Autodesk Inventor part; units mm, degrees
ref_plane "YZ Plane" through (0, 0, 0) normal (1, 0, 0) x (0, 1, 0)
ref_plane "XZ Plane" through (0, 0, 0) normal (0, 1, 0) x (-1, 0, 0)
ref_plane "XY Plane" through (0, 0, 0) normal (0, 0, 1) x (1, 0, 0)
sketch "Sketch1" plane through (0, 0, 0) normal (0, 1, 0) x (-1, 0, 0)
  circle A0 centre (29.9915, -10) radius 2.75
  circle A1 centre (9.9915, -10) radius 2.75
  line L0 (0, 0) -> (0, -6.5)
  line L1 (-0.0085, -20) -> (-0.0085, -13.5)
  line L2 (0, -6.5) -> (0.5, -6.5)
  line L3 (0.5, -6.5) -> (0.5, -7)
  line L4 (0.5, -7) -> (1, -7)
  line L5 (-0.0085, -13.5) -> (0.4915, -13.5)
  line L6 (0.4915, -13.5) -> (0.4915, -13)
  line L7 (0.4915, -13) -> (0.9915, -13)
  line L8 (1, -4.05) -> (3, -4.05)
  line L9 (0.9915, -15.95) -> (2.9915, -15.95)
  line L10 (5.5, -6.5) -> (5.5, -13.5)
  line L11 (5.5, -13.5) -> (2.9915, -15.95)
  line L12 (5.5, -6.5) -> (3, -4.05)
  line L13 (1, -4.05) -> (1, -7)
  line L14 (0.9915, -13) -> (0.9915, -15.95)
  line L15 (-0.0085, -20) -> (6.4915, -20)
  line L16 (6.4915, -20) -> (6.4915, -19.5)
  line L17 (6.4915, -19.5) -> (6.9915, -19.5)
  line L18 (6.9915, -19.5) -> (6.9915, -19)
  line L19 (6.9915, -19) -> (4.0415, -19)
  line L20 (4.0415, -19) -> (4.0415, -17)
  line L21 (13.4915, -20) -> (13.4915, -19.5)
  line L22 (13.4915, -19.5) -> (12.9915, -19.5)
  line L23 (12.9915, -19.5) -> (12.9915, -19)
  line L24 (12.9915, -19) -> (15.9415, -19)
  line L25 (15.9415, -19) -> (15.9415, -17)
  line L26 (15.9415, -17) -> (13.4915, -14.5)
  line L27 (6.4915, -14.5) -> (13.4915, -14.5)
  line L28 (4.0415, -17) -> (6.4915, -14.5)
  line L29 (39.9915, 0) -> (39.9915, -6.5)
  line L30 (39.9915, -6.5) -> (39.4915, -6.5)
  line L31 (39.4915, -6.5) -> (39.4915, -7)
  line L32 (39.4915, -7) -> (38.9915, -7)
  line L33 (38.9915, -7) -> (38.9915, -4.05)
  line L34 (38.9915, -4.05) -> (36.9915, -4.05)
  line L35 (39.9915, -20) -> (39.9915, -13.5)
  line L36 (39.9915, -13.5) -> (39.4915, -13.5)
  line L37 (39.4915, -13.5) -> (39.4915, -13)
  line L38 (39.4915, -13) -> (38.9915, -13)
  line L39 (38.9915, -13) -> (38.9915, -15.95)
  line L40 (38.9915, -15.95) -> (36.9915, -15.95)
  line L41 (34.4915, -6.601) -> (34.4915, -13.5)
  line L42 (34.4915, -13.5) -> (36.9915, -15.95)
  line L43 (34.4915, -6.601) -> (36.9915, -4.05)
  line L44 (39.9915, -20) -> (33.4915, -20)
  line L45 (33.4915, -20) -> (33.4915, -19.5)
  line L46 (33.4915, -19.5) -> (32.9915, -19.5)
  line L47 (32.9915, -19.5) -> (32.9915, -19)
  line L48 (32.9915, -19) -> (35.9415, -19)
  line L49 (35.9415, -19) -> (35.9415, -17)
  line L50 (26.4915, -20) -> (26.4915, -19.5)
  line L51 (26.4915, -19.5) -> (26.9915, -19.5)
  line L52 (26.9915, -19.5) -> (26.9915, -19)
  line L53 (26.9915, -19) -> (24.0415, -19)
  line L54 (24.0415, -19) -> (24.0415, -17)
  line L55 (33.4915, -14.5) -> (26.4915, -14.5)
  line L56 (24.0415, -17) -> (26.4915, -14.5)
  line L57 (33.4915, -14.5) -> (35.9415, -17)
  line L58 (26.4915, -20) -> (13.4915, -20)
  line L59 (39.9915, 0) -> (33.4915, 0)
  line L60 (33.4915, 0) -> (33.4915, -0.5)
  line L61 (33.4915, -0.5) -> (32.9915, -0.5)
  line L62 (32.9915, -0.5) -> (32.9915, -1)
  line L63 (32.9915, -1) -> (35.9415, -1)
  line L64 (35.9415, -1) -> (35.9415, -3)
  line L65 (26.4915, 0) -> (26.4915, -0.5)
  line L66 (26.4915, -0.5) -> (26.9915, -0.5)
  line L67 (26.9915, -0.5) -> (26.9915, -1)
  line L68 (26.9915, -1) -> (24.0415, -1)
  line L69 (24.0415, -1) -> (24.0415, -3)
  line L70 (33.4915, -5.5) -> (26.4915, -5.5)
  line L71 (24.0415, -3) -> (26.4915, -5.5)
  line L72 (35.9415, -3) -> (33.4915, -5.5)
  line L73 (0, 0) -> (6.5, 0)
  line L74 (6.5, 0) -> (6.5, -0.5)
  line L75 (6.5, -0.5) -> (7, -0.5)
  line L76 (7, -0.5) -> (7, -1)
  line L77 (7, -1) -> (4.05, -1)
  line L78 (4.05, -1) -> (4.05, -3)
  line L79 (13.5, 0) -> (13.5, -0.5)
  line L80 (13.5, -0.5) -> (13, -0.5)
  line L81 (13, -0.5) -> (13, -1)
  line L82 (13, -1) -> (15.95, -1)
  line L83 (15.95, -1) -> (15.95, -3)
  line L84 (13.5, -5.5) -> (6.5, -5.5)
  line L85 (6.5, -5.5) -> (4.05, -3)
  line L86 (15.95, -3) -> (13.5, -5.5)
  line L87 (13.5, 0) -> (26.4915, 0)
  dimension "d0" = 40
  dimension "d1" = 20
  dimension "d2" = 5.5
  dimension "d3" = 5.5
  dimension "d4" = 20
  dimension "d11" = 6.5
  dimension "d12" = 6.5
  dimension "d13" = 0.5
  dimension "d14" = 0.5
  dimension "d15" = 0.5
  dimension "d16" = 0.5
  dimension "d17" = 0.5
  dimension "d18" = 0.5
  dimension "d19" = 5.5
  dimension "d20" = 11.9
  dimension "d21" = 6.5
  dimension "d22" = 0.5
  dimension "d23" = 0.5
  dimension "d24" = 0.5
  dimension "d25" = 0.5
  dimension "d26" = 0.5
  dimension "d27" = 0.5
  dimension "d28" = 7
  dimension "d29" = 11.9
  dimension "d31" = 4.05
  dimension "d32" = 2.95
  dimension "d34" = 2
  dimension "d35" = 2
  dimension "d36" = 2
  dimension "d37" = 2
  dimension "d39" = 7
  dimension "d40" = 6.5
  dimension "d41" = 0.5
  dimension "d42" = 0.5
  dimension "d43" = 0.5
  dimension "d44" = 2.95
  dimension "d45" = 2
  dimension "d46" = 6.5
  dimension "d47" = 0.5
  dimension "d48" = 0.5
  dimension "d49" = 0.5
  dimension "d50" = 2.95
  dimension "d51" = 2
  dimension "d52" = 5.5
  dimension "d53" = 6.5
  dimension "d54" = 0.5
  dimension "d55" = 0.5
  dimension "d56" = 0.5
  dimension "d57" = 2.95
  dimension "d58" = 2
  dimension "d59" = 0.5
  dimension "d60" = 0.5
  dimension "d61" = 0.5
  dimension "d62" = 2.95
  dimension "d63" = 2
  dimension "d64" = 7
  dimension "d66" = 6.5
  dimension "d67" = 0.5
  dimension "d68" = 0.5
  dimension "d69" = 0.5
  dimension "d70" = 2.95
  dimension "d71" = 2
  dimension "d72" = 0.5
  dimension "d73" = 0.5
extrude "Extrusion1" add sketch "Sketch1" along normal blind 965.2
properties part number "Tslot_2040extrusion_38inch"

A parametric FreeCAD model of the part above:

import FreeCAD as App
import Part
import Sketcher
from FreeCAD import Vector
Q = App.Units.Quantity

doc = App.newDocument("Part")
body = doc.addObject("PartDesign::Body", "Body")

# Sketch on XZ plane
sketch1 = body.newObject("Sketcher::SketchObject", "Sketch")
sketch1.AttachmentSupport = (doc.getObject("XZ_Plane"), [""])
sketch1.MapMode = "FlatFace"
sketch1.addGeometry(Part.LineSegment(Vector(-6.5, 0, 0), Vector(0, 0, 0)), False)
sketch1.addGeometry(Part.LineSegment(Vector(0, 0, 0), Vector(0, -6.5, 0)), False)
sketch1.addGeometry(Part.LineSegment(Vector(0, -6.5, 0), Vector(-0.5, -6.5, 0)), False)
sketch1.addGeometry(Part.LineSegment(Vector(-0.5, -6.5, 0), Vector(-0.5, -7, 0)), False)
sketch1.addGeometry(Part.LineSegment(Vector(-0.5, -7, 0), Vector(-1, -7, 0)), False)
sketch1.addGeometry(Part.LineSegment(Vector(-1, -7, 0), Vector(-1, -4.05, 0)), False)
sketch1.addGeometry(Part.LineSegment(Vector(-1, -4.05, 0), Vector(-3, -4.05, 0)), False)
sketch1.addGeometry(Part.LineSegment(Vector(-3, -4.05, 0), Vector(-5.5, -6.5, 0)), False)
sketch1.addGeometry(Part.LineSegment(Vector(-5.5, -6.5, 0), Vector(-5.5, -13.5, 0)), False)
sketch1.addGeometry(Part.LineSegment(Vector(-5.5, -13.5, 0), Vector(-2.9915, -15.95, 0)), False)
sketch1.addGeometry(Part.LineSegment(Vector(-2.9915, -15.95, 0), Vector(-0.9915, -15.95, 0)), False)
sketch1.addGeometry(Part.LineSegment(Vector(-0.9915, -15.95, 0), Vector(-0.9915, -13, 0)), False)
sketch1.addGeometry(Part.LineSegment(Vector(-0.9915, -13, 0), Vector(-0.4915, -13, 0)), False)
sketch1.addGeometry(Part.LineSegment(Vector(-0.4915, -13, 0), Vector(-0.4915, -13.5, 0)), False)
sketch1.addGeometry(Part.LineSegment(Vector(-0.4915, -13.5, 0), Vector(0.0085, -13.5, 0)), False)
sketch1.addGeometry(Part.LineSegment(Vector(0.0085, -13.5, 0), Vector(0.0085, -20, 0)), False)
sketch1.addGeometry(Part.LineSegment(Vector(0.0085, -20, 0), Vector(-6.4915, -20, 0)), False)
sketch1.addGeometry(Part.LineSegment(Vector(-6.4915, -20, 0), Vector(-6.4915, -19.5, 0)), False)
sketch1.addGeometry(Part.LineSegment(Vector(-6.4915, -19.5, 0), Vector(-6.9915, -19.5, 0)), False)
sketch1.addGeometry(Part.LineSegment(Vector(-6.9915, -19.5, 0), Vector(-6.9915, -19, 0)), False)
sketch1.addGeometry(Part.LineSegment(Vector(-6.9915, -19, 0), Vector(-4.0415, -19, 0)), False)
sketch1.addGeometry(Part.LineSegment(Vector(-4.0415, -19, 0), Vector(-4.0415, -17, 0)), False)
sketch1.addGeometry(Part.LineSegment(Vector(-4.0415, -17, 0), Vector(-6.4915, -14.5, 0)), False)
sketch1.addGeometry(Part.LineSegment(Vector(-6.4915, -14.5, 0), Vector(-13.4915, -14.5, 0)), False)
sketch1.addGeometry(Part.LineSegment(Vector(-13.4915, -14.5, 0), Vector(-15.9415, -17, 0)), False)
sketch1.addGeometry(Part.LineSegment(Vector(-15.9415, -17, 0), Vector(-15.9415, -19, 0)), False)
sketch1.addGeometry(Part.LineSegment(Vector(-15.9415, -19, 0), Vector(-12.9915, -19, 0)), False)
sketch1.addGeometry(Part.LineSegment(Vector(-12.9915, -19, 0), Vector(-12.9915, -19.5, 0)), False)
sketch1.addGeometry(Part.LineSegment(Vector(-12.9915, -19.5, 0), Vector(-13.4915, -19.5, 0)), False)
sketch1.addGeometry(Part.LineSegment(Vector(-13.4915, -19.5, 0), Vector(-13.4915, -20, 0)), False)
sketch1.addGeometry(Part.LineSegment(Vector(-13.4915, -20, 0), Vector(-26.4915, -20, 0)), False)
sketch1.addGeometry(Part.LineSegment(Vector(-26.4915, -20, 0), Vector(-26.4915, -19.5, 0)), False)
sketch1.addGeometry(Part.LineSegment(Vector(-26.4915, -19.5, 0), Vector(-26.9915, -19.5, 0)), False)
sketch1.addGeometry(Part.LineSegment(Vector(-26.9915, -19.5, 0), Vector(-26.9915, -19, 0)), False)
sketch1.addGeometry(Part.LineSegment(Vector(-26.9915, -19, 0), Vector(-24.0415, -19, 0)), False)
sketch1.addGeometry(Part.LineSegment(Vector(-24.0415, -19, 0), Vector(-24.0415, -17, 0)), False)
sketch1.addGeometry(Part.LineSegment(Vector(-24.0415, -17, 0), Vector(-26.4915, -14.5, 0)), False)
sketch1.addGeometry(Part.LineSegment(Vector(-26.4915, -14.5, 0), Vector(-33.4915, -14.5, 0)), False)
sketch1.addGeometry(Part.LineSegment(Vector(-33.4915, -14.5, 0), Vector(-35.9415, -17, 0)), False)
sketch1.addGeometry(Part.LineSegment(Vector(-35.9415, -17, 0), Vector(-35.9415, -19, 0)), False)
sketch1.addGeometry(Part.LineSegment(Vector(-35.9415, -19, 0), Vector(-32.9915, -19, 0)), False)
sketch1.addGeometry(Part.LineSegment(Vector(-32.9915, -19, 0), Vector(-32.9915, -19.5, 0)), False)
sketch1.addGeometry(Part.LineSegment(Vector(-32.9915, -19.5, 0), Vector(-33.4915, -19.5, 0)), False)
sketch1.addGeometry(Part.LineSegment(Vector(-33.4915, -19.5, 0), Vector(-33.4915, -20, 0)), False)
sketch1.addGeometry(Part.LineSegment(Vector(-33.4915, -20, 0), Vector(-39.9915, -20, 0)), False)
sketch1.addGeometry(Part.LineSegment(Vector(-39.9915, -20, 0), Vector(-39.9915, -13.5, 0)), False)
sketch1.addGeometry(Part.LineSegment(Vector(-39.9915, -13.5, 0), Vector(-39.4915, -13.5, 0)), False)
sketch1.addGeometry(Part.LineSegment(Vector(-39.4915, -13.5, 0), Vector(-39.4915, -13, 0)), False)
sketch1.addGeometry(Part.LineSegment(Vector(-39.4915, -13, 0), Vector(-38.9915, -13, 0)), False)
sketch1.addGeometry(Part.LineSegment(Vector(-38.9915, -13, 0), Vector(-38.9915, -15.95, 0)), False)
sketch1.addGeometry(Part.LineSegment(Vector(-38.9915, -15.95, 0), Vector(-36.9915, -15.95, 0)), False)
sketch1.addGeometry(Part.LineSegment(Vector(-36.9915, -15.95, 0), Vector(-34.4915, -13.5, 0)), False)
sketch1.addGeometry(Part.LineSegment(Vector(-34.4915, -13.5, 0), Vector(-34.4915, -6.601, 0)), False)
sketch1.addGeometry(Part.LineSegment(Vector(-34.4915, -6.601, 0), Vector(-36.9915, -4.05, 0)), False)
sketch1.addGeometry(Part.LineSegment(Vector(-36.9915, -4.05, 0), Vector(-38.9915, -4.05, 0)), False)
sketch1.addGeometry(Part.LineSegment(Vector(-38.9915, -4.05, 0), Vector(-38.9915, -7, 0)), False)
sketch1.addGeometry(Part.LineSegment(Vector(-38.9915, -7, 0), Vector(-39.4915, -7, 0)), False)
sketch1.addGeometry(Part.LineSegment(Vector(-39.4915, -7, 0), Vector(-39.4915, -6.5, 0)), False)
sketch1.addGeometry(Part.LineSegment(Vector(-39.4915, -6.5, 0), Vector(-39.9915, -6.5, 0)), False)
sketch1.addGeometry(Part.LineSegment(Vector(-39.9915, -6.5, 0), Vector(-39.9915, 0, 0)), False)
sketch1.addGeometry(Part.LineSegment(Vector(-39.9915, 0, 0), Vector(-33.4915, 0, 0)), False)
sketch1.addGeometry(Part.LineSegment(Vector(-33.4915, 0, 0), Vector(-33.4915, -0.5, 0)), False)
sketch1.addGeometry(Part.LineSegment(Vector(-33.4915, -0.5, 0), Vector(-32.9915, -0.5, 0)), False)
sketch1.addGeometry(Part.LineSegment(Vector(-32.9915, -0.5, 0), Vector(-32.9915, -1, 0)), False)
sketch1.addGeometry(Part.LineSegment(Vector(-32.9915, -1, 0), Vector(-35.9415, -1, 0)), False)
sketch1.addGeometry(Part.LineSegment(Vector(-35.9415, -1, 0), Vector(-35.9415, -3, 0)), False)
sketch1.addGeometry(Part.LineSegment(Vector(-35.9415, -3, 0), Vector(-33.4915, -5.5, 0)), False)
sketch1.addGeometry(Part.LineSegment(Vector(-33.4915, -5.5, 0), Vector(-26.4915, -5.5, 0)), False)
sketch1.addGeometry(Part.LineSegment(Vector(-26.4915, -5.5, 0), Vector(-24.0415, -3, 0)), False)
sketch1.addGeometry(Part.LineSegment(Vector(-24.0415, -3, 0), Vector(-24.0415, -1, 0)), False)
sketch1.addGeometry(Part.LineSegment(Vector(-24.0415, -1, 0), Vector(-26.9915, -1, 0)), False)
sketch1.addGeometry(Part.LineSegment(Vector(-26.9915, -1, 0), Vector(-26.9915, -0.5, 0)), False)
sketch1.addGeometry(Part.LineSegment(Vector(-26.9915, -0.5, 0), Vector(-26.4915, -0.5, 0)), False)
sketch1.addGeometry(Part.LineSegment(Vector(-26.4915, -0.5, 0), Vector(-26.4915, 0, 0)), False)
sketch1.addGeometry(Part.LineSegment(Vector(-26.4915, 0, 0), Vector(-13.5, 0, 0)), False)
sketch1.addGeometry(Part.LineSegment(Vector(-13.5, 0, 0), Vector(-13.5, -0.5, 0)), False)
sketch1.addGeometry(Part.LineSegment(Vector(-13.5, -0.5, 0), Vector(-13, -0.5, 0)), False)
sketch1.addGeometry(Part.LineSegment(Vector(-13, -0.5, 0), Vector(-13, -1, 0)), False)
sketch1.addGeometry(Part.LineSegment(Vector(-13, -1, 0), Vector(-15.95, -1, 0)), False)
sketch1.addGeometry(Part.LineSegment(Vector(-15.95, -1, 0), Vector(-15.95, -3, 0)), False)
sketch1.addGeometry(Part.LineSegment(Vector(-15.95, -3, 0), Vector(-13.5, -5.5, 0)), False)
sketch1.addGeometry(Part.LineSegment(Vector(-13.5, -5.5, 0), Vector(-6.5, -5.5, 0)), False)
sketch1.addGeometry(Part.LineSegment(Vector(-6.5, -5.5, 0), Vector(-4.05, -3, 0)), False)
sketch1.addGeometry(Part.LineSegment(Vector(-4.05, -3, 0), Vector(-4.05, -1, 0)), False)
sketch1.addGeometry(Part.LineSegment(Vector(-4.05, -1, 0), Vector(-7, -1, 0)), False)
sketch1.addGeometry(Part.LineSegment(Vector(-7, -1, 0), Vector(-7, -0.5, 0)), False)
sketch1.addGeometry(Part.LineSegment(Vector(-7, -0.5, 0), Vector(-6.5, -0.5, 0)), False)
sketch1.addGeometry(Part.LineSegment(Vector(-6.5, -0.5, 0), Vector(-6.5, 0, 0)), False)
sketch1.addGeometry(Part.Circle(Vector(-9.9915, -10, 0), Vector(0, 0, 1), 2.75), False)
sketch1.addGeometry(Part.Circle(Vector(-29.9915, -10, 0), Vector(0, 0, 1), 2.75), False)
sketch1.addConstraint(Sketcher.Constraint("Coincident", 0, 2, 1, 1))
sketch1.addConstraint(Sketcher.Constraint("Coincident", 1, 2, 2, 1))
sketch1.addConstraint(Sketcher.Constraint("Coincident", 2, 2, 3, 1))
sketch1.addConstraint(Sketcher.Constraint("Coincident", 3, 2, 4, 1))
sketch1.addConstraint(Sketcher.Constraint("Coincident", 4, 2, 5, 1))
sketch1.addConstraint(Sketcher.Constraint("Coincident", 5, 2, 6, 1))
sketch1.addConstraint(Sketcher.Constraint("Coincident", 6, 2, 7, 1))
sketch1.addConstraint(Sketcher.Constraint("Coincident", 7, 2, 8, 1))
sketch1.addConstraint(Sketcher.Constraint("Coincident", 8, 2, 9, 1))
sketch1.addConstraint(Sketcher.Constraint("Coincident", 9, 2, 10, 1))
sketch1.addConstraint(Sketcher.Constraint("Coincident", 10, 2, 11, 1))
sketch1.addConstraint(Sketcher.Constraint("Coincident", 11, 2, 12, 1))
sketch1.addConstraint(Sketcher.Constraint("Coincident", 12, 2, 13, 1))
sketch1.addConstraint(Sketcher.Constraint("Coincident", 13, 2, 14, 1))
sketch1.addConstraint(Sketcher.Constraint("Coincident", 14, 2, 15, 1))
sketch1.addConstraint(Sketcher.Constraint("Coincident", 15, 2, 16, 1))
sketch1.addConstraint(Sketcher.Constraint("Coincident", 16, 2, 17, 1))
sketch1.addConstraint(Sketcher.Constraint("Coincident", 17, 2, 18, 1))
sketch1.addConstraint(Sketcher.Constraint("Coincident", 18, 2, 19, 1))
sketch1.addConstraint(Sketcher.Constraint("Coincident", 19, 2, 20, 1))
sketch1.addConstraint(Sketcher.Constraint("Coincident", 20, 2, 21, 1))
sketch1.addConstraint(Sketcher.Constraint("Coincident", 21, 2, 22, 1))
sketch1.addConstraint(Sketcher.Constraint("Coincident", 22, 2, 23, 1))
sketch1.addConstraint(Sketcher.Constraint("Coincident", 23, 2, 24, 1))
sketch1.addConstraint(Sketcher.Constraint("Coincident", 24, 2, 25, 1))
sketch1.addConstraint(Sketcher.Constraint("Coincident", 25, 2, 26, 1))
sketch1.addConstraint(Sketcher.Constraint("Coincident", 26, 2, 27, 1))
sketch1.addConstraint(Sketcher.Constraint("Coincident", 27, 2, 28, 1))
sketch1.addConstraint(Sketcher.Constraint("Coincident", 28, 2, 29, 1))
sketch1.addConstraint(Sketcher.Constraint("Coincident", 29, 2, 30, 1))
sketch1.addConstraint(Sketcher.Constraint("Coincident", 30, 2, 31, 1))
sketch1.addConstraint(Sketcher.Constraint("Coincident", 31, 2, 32, 1))
sketch1.addConstraint(Sketcher.Constraint("Coincident", 32, 2, 33, 1))
sketch1.addConstraint(Sketcher.Constraint("Coincident", 33, 2, 34, 1))
sketch1.addConstraint(Sketcher.Constraint("Coincident", 34, 2, 35, 1))
sketch1.addConstraint(Sketcher.Constraint("Coincident", 35, 2, 36, 1))
sketch1.addConstraint(Sketcher.Constraint("Coincident", 36, 2, 37, 1))
sketch1.addConstraint(Sketcher.Constraint("Coincident", 37, 2, 38, 1))
sketch1.addConstraint(Sketcher.Constraint("Coincident", 38, 2, 39, 1))
sketch1.addConstraint(Sketcher.Constraint("Coincident", 39, 2, 40, 1))
sketch1.addConstraint(Sketcher.Constraint("Coincident", 40, 2, 41, 1))
sketch1.addConstraint(Sketcher.Constraint("Coincident", 41, 2, 42, 1))
sketch1.addConstraint(Sketcher.Constraint("Coincident", 42, 2, 43, 1))
sketch1.addConstraint(Sketcher.Constraint("Coincident", 43, 2, 44, 1))
sketch1.addConstraint(Sketcher.Constraint("Coincident", 44, 2, 45, 1))
sketch1.addConstraint(Sketcher.Constraint("Coincident", 45, 2, 46, 1))
sketch1.addConstraint(Sketcher.Constraint("Coincident", 46, 2, 47, 1))
sketch1.addConstraint(Sketcher.Constraint("Coincident", 47, 2, 48, 1))
sketch1.addConstraint(Sketcher.Constraint("Coincident", 48, 2, 49, 1))
sketch1.addConstraint(Sketcher.Constraint("Coincident", 49, 2, 50, 1))
sketch1.addConstraint(Sketcher.Constraint("Coincident", 50, 2, 51, 1))
sketch1.addConstraint(Sketcher.Constraint("Coincident", 51, 2, 52, 1))
sketch1.addConstraint(Sketcher.Constraint("Coincident", 52, 2, 53, 1))
sketch1.addConstraint(Sketcher.Constraint("Coincident", 53, 2, 54, 1))
sketch1.addConstraint(Sketcher.Constraint("Coincident", 54, 2, 55, 1))
sketch1.addConstraint(Sketcher.Constraint("Coincident", 55, 2, 56, 1))
sketch1.addConstraint(Sketcher.Constraint("Coincident", 56, 2, 57, 1))
sketch1.addConstraint(Sketcher.Constraint("Coincident", 57, 2, 58, 1))
sketch1.addConstraint(Sketcher.Constraint("Coincident", 58, 2, 59, 1))
sketch1.addConstraint(Sketcher.Constraint("Coincident", 59, 2, 60, 1))
sketch1.addConstraint(Sketcher.Constraint("Coincident", 60, 2, 61, 1))
sketch1.addConstraint(Sketcher.Constraint("Coincident", 61, 2, 62, 1))
sketch1.addConstraint(Sketcher.Constraint("Coincident", 62, 2, 63, 1))
sketch1.addConstraint(Sketcher.Constraint("Coincident", 63, 2, 64, 1))
sketch1.addConstraint(Sketcher.Constraint("Coincident", 64, 2, 65, 1))
sketch1.addConstraint(Sketcher.Constraint("Coincident", 65, 2, 66, 1))
sketch1.addConstraint(Sketcher.Constraint("Coincident", 66, 2, 67, 1))
sketch1.addConstraint(Sketcher.Constraint("Coincident", 67, 2, 68, 1))
sketch1.addConstraint(Sketcher.Constraint("Coincident", 68, 2, 69, 1))
sketch1.addConstraint(Sketcher.Constraint("Coincident", 69, 2, 70, 1))
sketch1.addConstraint(Sketcher.Constraint("Coincident", 70, 2, 71, 1))
sketch1.addConstraint(Sketcher.Constraint("Coincident", 71, 2, 72, 1))
sketch1.addConstraint(Sketcher.Constraint("Coincident", 72, 2, 73, 1))
sketch1.addConstraint(Sketcher.Constraint("Coincident", 73, 2, 74, 1))
sketch1.addConstraint(Sketcher.Constraint("Coincident", 74, 2, 75, 1))
sketch1.addConstraint(Sketcher.Constraint("Coincident", 75, 2, 76, 1))
sketch1.addConstraint(Sketcher.Constraint("Coincident", 76, 2, 77, 1))
sketch1.addConstraint(Sketcher.Constraint("Coincident", 77, 2, 78, 1))
sketch1.addConstraint(Sketcher.Constraint("Coincident", 78, 2, 79, 1))
sketch1.addConstraint(Sketcher.Constraint("Coincident", 79, 2, 80, 1))
sketch1.addConstraint(Sketcher.Constraint("Coincident", 80, 2, 81, 1))
sketch1.addConstraint(Sketcher.Constraint("Coincident", 81, 2, 82, 1))
sketch1.addConstraint(Sketcher.Constraint("Coincident", 82, 2, 83, 1))
sketch1.addConstraint(Sketcher.Constraint("Coincident", 83, 2, 84, 1))
sketch1.addConstraint(Sketcher.Constraint("Coincident", 84, 2, 85, 1))
sketch1.addConstraint(Sketcher.Constraint("Coincident", 85, 2, 86, 1))
sketch1.addConstraint(Sketcher.Constraint("Coincident", 86, 2, 87, 1))
sketch1.addConstraint(Sketcher.Constraint("Coincident", 87, 2, 0, 1))
sketch1.addConstraint(Sketcher.Constraint("Horizontal", 0))
sketch1.addConstraint(Sketcher.Constraint("Vertical", 1))
sketch1.addConstraint(Sketcher.Constraint("Horizontal", 2))
sketch1.addConstraint(Sketcher.Constraint("Vertical", 3))
sketch1.addConstraint(Sketcher.Constraint("Horizontal", 4))
sketch1.addConstraint(Sketcher.Constraint("Vertical", 5))
sketch1.addConstraint(Sketcher.Constraint("Horizontal", 6))
sketch1.addConstraint(Sketcher.Constraint("Vertical", 8))
sketch1.addConstraint(Sketcher.Constraint("Horizontal", 10))
sketch1.addConstraint(Sketcher.Constraint("Vertical", 11))
sketch1.addConstraint(Sketcher.Constraint("Horizontal", 12))
sketch1.addConstraint(Sketcher.Constraint("Vertical", 13))
sketch1.addConstraint(Sketcher.Constraint("Horizontal", 14))
sketch1.addConstraint(Sketcher.Constraint("Vertical", 15))
sketch1.addConstraint(Sketcher.Constraint("Horizontal", 16))
sketch1.addConstraint(Sketcher.Constraint("Vertical", 17))
sketch1.addConstraint(Sketcher.Constraint("Horizontal", 18))
sketch1.addConstraint(Sketcher.Constraint("Vertical", 19))
sketch1.addConstraint(Sketcher.Constraint("Horizontal", 20))
sketch1.addConstraint(Sketcher.Constraint("Vertical", 21))
sketch1.addConstraint(Sketcher.Constraint("Horizontal", 23))
sketch1.addConstraint(Sketcher.Constraint("Vertical", 25))
sketch1.addConstraint(Sketcher.Constraint("Horizontal", 26))
sketch1.addConstraint(Sketcher.Constraint("Vertical", 27))
sketch1.addConstraint(Sketcher.Constraint("Horizontal", 28))
sketch1.addConstraint(Sketcher.Constraint("Vertical", 29))
sketch1.addConstraint(Sketcher.Constraint("Horizontal", 30))
sketch1.addConstraint(Sketcher.Constraint("Vertical", 31))
sketch1.addConstraint(Sketcher.Constraint("Horizontal", 32))
sketch1.addConstraint(Sketcher.Constraint("Vertical", 33))
sketch1.addConstraint(Sketcher.Constraint("Horizontal", 34))
sketch1.addConstraint(Sketcher.Constraint("Vertical", 35))
sketch1.addConstraint(Sketcher.Constraint("Horizontal", 37))
sketch1.addConstraint(Sketcher.Constraint("Vertical", 39))
sketch1.addConstraint(Sketcher.Constraint("Horizontal", 40))
sketch1.addConstraint(Sketcher.Constraint("Vertical", 41))
sketch1.addConstraint(Sketcher.Constraint("Horizontal", 42))
sketch1.addConstraint(Sketcher.Constraint("Vertical", 43))
sketch1.addConstraint(Sketcher.Constraint("Horizontal", 44))
sketch1.addConstraint(Sketcher.Constraint("Vertical", 45))
sketch1.addConstraint(Sketcher.Constraint("Horizontal", 46))
sketch1.addConstraint(Sketcher.Constraint("Vertical", 47))
sketch1.addConstraint(Sketcher.Constraint("Horizontal", 48))
sketch1.addConstraint(Sketcher.Constraint("Vertical", 49))
sketch1.addConstraint(Sketcher.Constraint("Horizontal", 50))
sketch1.addConstraint(Sketcher.Constraint("Vertical", 52))
sketch1.addConstraint(Sketcher.Constraint("Horizontal", 54))
sketch1.addConstraint(Sketcher.Constraint("Vertical", 55))
sketch1.addConstraint(Sketcher.Constraint("Horizontal", 56))
sketch1.addConstraint(Sketcher.Constraint("Vertical", 57))
sketch1.addConstraint(Sketcher.Constraint("Horizontal", 58))
sketch1.addConstraint(Sketcher.Constraint("Vertical", 59))
sketch1.addConstraint(Sketcher.Constraint("Horizontal", 60))
sketch1.addConstraint(Sketcher.Constraint("Vertical", 61))
sketch1.addConstraint(Sketcher.Constraint("Horizontal", 62))
sketch1.addConstraint(Sketcher.Constraint("Vertical", 63))
sketch1.addConstraint(Sketcher.Constraint("Horizontal", 64))
sketch1.addConstraint(Sketcher.Constraint("Vertical", 65))
sketch1.addConstraint(Sketcher.Constraint("Horizontal", 67))
sketch1.addConstraint(Sketcher.Constraint("Vertical", 69))
sketch1.addConstraint(Sketcher.Constraint("Horizontal", 70))
sketch1.addConstraint(Sketcher.Constraint("Vertical", 71))
sketch1.addConstraint(Sketcher.Constraint("Horizontal", 72))
sketch1.addConstraint(Sketcher.Constraint("Vertical", 73))
sketch1.addConstraint(Sketcher.Constraint("Horizontal", 74))
sketch1.addConstraint(Sketcher.Constraint("Vertical", 75))
sketch1.addConstraint(Sketcher.Constraint("Horizontal", 76))
sketch1.addConstraint(Sketcher.Constraint("Vertical", 77))
sketch1.addConstraint(Sketcher.Constraint("Horizontal", 78))
sketch1.addConstraint(Sketcher.Constraint("Vertical", 79))
sketch1.addConstraint(Sketcher.Constraint("Horizontal", 81))
sketch1.addConstraint(Sketcher.Constraint("Vertical", 83))
sketch1.addConstraint(Sketcher.Constraint("Horizontal", 84))
sketch1.addConstraint(Sketcher.Constraint("Vertical", 85))
sketch1.addConstraint(Sketcher.Constraint("Horizontal", 86))
sketch1.addConstraint(Sketcher.Constraint("Vertical", 87))
sketch1.addConstraint(Sketcher.Constraint("Coincident", 0, 2, -1, 1))
sketch1.addConstraint(Sketcher.Constraint("Equal", 88, 89))
sketch1.addConstraint(Sketcher.Constraint("PointOnObject", 59, 2, -1))
sketch1.addConstraint(Sketcher.Constraint("PointOnObject", 73, 2, -1))
sketch1.addConstraint(Sketcher.Constraint("Perpendicular", 7, 22))
sketch1.addConstraint(Sketcher.Constraint("Parallel", 22, 36))
sketch1.addConstraint(Sketcher.Constraint("Parallel", 24, 38))
sketch1.addConstraint(Sketcher.Constraint("Perpendicular", 36, 51))
sketch1.addConstraint(Sketcher.Constraint("Perpendicular", 51, 53))
sketch1.addConstraint(Sketcher.Constraint("Parallel", 53, 66))
sketch1.addConstraint(Sketcher.Constraint("Parallel", 38, 68))
sketch1.addConstraint(Sketcher.Constraint("Parallel", 66, 80))
sketch1.addConstraint(Sketcher.Constraint("Parallel", 68, 82))
sketch1.addConstraint(Sketcher.Constraint("Horizontal", 88, 3, 89, 3))
sketch1.addConstraint(Sketcher.Constraint("Horizontal", 2, 2, 7, 2))
sketch1.addConstraint(Sketcher.Constraint("Horizontal", 8, 2, 13, 2))
sketch1.addConstraint(Sketcher.Constraint("Horizontal", 21, 2, 24, 2))
sketch1.addConstraint(Sketcher.Constraint("Horizontal", 20, 2, 25, 2))
sketch1.addConstraint(Sketcher.Constraint("Horizontal", 18, 2, 27, 2))
sketch1.addConstraint(Sketcher.Constraint("Horizontal", 16, 2, 29, 2))
sketch1.addConstraint(Sketcher.Constraint("Horizontal", 28, 2, 31, 2))
sketch1.addConstraint(Sketcher.Constraint("Horizontal", 26, 2, 33, 2))
sketch1.addConstraint(Sketcher.Constraint("Horizontal", 24, 2, 35, 2))
sketch1.addConstraint(Sketcher.Constraint("Horizontal", 23, 2, 36, 2))
sketch1.addConstraint(Sketcher.Constraint("Horizontal", 35, 2, 38, 2))
sketch1.addConstraint(Sketcher.Constraint("Horizontal", 34, 2, 39, 2))
sketch1.addConstraint(Sketcher.Constraint("Horizontal", 32, 2, 41, 2))
sketch1.addConstraint(Sketcher.Constraint("Horizontal", 30, 2, 43, 2))
sketch1.addConstraint(Sketcher.Constraint("Horizontal", 14, 2, 45, 2))
sketch1.addConstraint(Sketcher.Constraint("Horizontal", 12, 2, 47, 2))
sketch1.addConstraint(Sketcher.Constraint("Horizontal", 10, 2, 49, 2))
sketch1.addConstraint(Sketcher.Constraint("Horizontal", 46, 2, 51, 2))
sketch1.addConstraint(Sketcher.Constraint("Horizontal", 6, 2, 53, 2))
sketch1.addConstraint(Sketcher.Constraint("Horizontal", 4, 2, 55, 2))
sketch1.addConstraint(Sketcher.Constraint("Horizontal", 7, 2, 57, 2))
sketch1.addConstraint(Sketcher.Constraint("Horizontal", 65, 2, 68, 2))
sketch1.addConstraint(Sketcher.Constraint("Horizontal", 64, 2, 69, 2))
sketch1.addConstraint(Sketcher.Constraint("Horizontal", 62, 2, 71, 2))
sketch1.addConstraint(Sketcher.Constraint("Horizontal", 72, 2, 75, 2))
sketch1.addConstraint(Sketcher.Constraint("Horizontal", 70, 2, 77, 2))
sketch1.addConstraint(Sketcher.Constraint("Horizontal", 68, 2, 79, 2))
sketch1.addConstraint(Sketcher.Constraint("Horizontal", 67, 2, 80, 2))
sketch1.addConstraint(Sketcher.Constraint("Horizontal", 79, 2, 82, 2))
sketch1.addConstraint(Sketcher.Constraint("Horizontal", 78, 2, 83, 2))
sketch1.addConstraint(Sketcher.Constraint("Horizontal", 76, 2, 85, 2))
sketch1.addConstraint(Sketcher.Constraint("Vertical", 17, 2, 22, 2))
sketch1.addConstraint(Sketcher.Constraint("Vertical", 23, 2, 28, 2))
sketch1.addConstraint(Sketcher.Constraint("Vertical", 31, 2, 36, 2))
sketch1.addConstraint(Sketcher.Constraint("Vertical", 37, 2, 42, 2))
sketch1.addConstraint(Sketcher.Constraint("Vertical", 50, 2, 53, 2))
sketch1.addConstraint(Sketcher.Constraint("Vertical", 49, 2, 54, 2))
sketch1.addConstraint(Sketcher.Constraint("Vertical", 47, 2, 56, 2))
sketch1.addConstraint(Sketcher.Constraint("Vertical", 45, 2, 58, 2))
sketch1.addConstraint(Sketcher.Constraint("Vertical", 43, 2, 60, 2))
sketch1.addConstraint(Sketcher.Constraint("Vertical", 41, 2, 62, 2))
sketch1.addConstraint(Sketcher.Constraint("Vertical", 39, 2, 64, 2))
sketch1.addConstraint(Sketcher.Constraint("Vertical", 61, 2, 66, 2))
sketch1.addConstraint(Sketcher.Constraint("Vertical", 36, 2, 67, 2))
sketch1.addConstraint(Sketcher.Constraint("Vertical", 35, 2, 68, 2))
sketch1.addConstraint(Sketcher.Constraint("Vertical", 33, 2, 70, 2))
sketch1.addConstraint(Sketcher.Constraint("Vertical", 67, 2, 72, 2))
sketch1.addConstraint(Sketcher.Constraint("Vertical", 75, 2, 80, 2))
sketch1.addConstraint(Sketcher.Constraint("Vertical", 81, 2, 86, 2))
sketch1.addConstraint(Sketcher.Constraint("Equal", 2, 4))
sketch1.addConstraint(Sketcher.Constraint("Equal", 6, 10))
sketch1.addConstraint(Sketcher.Constraint("Equal", 4, 12))
sketch1.addConstraint(Sketcher.Constraint("Equal", 12, 14))
sketch1.addConstraint(Sketcher.Constraint("Equal", 0, 16))
sketch1.addConstraint(Sketcher.Constraint("Equal", 14, 18))
sketch1.addConstraint(Sketcher.Constraint("Equal", 20, 26))
sketch1.addConstraint(Sketcher.Constraint("Equal", 28, 32))
sketch1.addConstraint(Sketcher.Constraint("Equal", 23, 37))
sketch1.addConstraint(Sketcher.Constraint("Equal", 34, 40))
sketch1.addConstraint(Sketcher.Constraint("Equal", 16, 44))
sketch1.addConstraint(Sketcher.Constraint("Equal", 42, 46))
sketch1.addConstraint(Sketcher.Constraint("Equal", 46, 48))
sketch1.addConstraint(Sketcher.Constraint("Equal", 10, 50))
sketch1.addConstraint(Sketcher.Constraint("Equal", 72, 76))
sketch1.addConstraint(Sketcher.Constraint("Equal", 67, 81))
sketch1.addConstraint(Sketcher.Constraint("Equal", 78, 84))
sketch1.addConstraint(Sketcher.Constraint("Equal", 60, 1))
sketch1.addConstraint(Sketcher.Constraint("Equal", 86, 3))
sketch1.addConstraint(Sketcher.Constraint("Equal", 84, 5))
sketch1.addConstraint(Sketcher.Constraint("Equal", 81, 8))
sketch1.addConstraint(Sketcher.Constraint("Equal", 5, 11))
sketch1.addConstraint(Sketcher.Constraint("Equal", 3, 13))
sketch1.addConstraint(Sketcher.Constraint("Equal", 1, 15))
sketch1.addConstraint(Sketcher.Constraint("Equal", 13, 17))
sketch1.addConstraint(Sketcher.Constraint("Equal", 17, 19))
sketch1.addConstraint(Sketcher.Constraint("Equal", 54, 21))
sketch1.addConstraint(Sketcher.Constraint("Equal", 57, 61))
sketch1.addConstraint(Sketcher.Constraint("Equal", 61, 63))
sketch1.addConstraint(Sketcher.Constraint("Equal", 39, 65))
sketch1.addConstraint(Sketcher.Constraint("Diameter", 88, Q("5.5 mm")))
sketch1.addConstraint(Sketcher.Constraint("DistanceX", 6, 2, 6, 1, Q("2 mm")))
sketch1.addConstraint(Sketcher.Constraint("DistanceX", 23, 2, 23, 1, Q("7 mm")))
sketch1.addConstraint(Sketcher.Constraint("DistanceX", 0, 1, 0, 2, Q("6.5 mm")))
sketch1.addConstraint(Sketcher.Constraint("DistanceX", 2, 2, 2, 1, Q("0.5 mm")))
sketch1.addConstraint(Sketcher.Constraint("DistanceX", 20, 1, 20, 2, Q("2.95 mm")))
sketch1.addConstraint(Sketcher.Constraint("DistanceX", 7, 2, -1, 1, Q("5.5 mm")))
sketch1.addConstraint(Sketcher.Constraint("DistanceX", 30, 2, 30, 1, Q("13 mm")))
sketch1.addConstraint(Sketcher.Constraint("DistanceY", 88, 3, -1, 1, Q("10 mm")))
sketch1.addConstraint(Sketcher.Constraint("DistanceX", 74, 1, 74, 2, Q("12.9915 mm")))
sketch1.addConstraint(Sketcher.Constraint("DistanceX", 88, 3, -1, 1, Q("9.9915 mm")))
sketch1.addConstraint(Sketcher.Constraint("DistanceX", 89, 3, -1, 1, Q("29.9915 mm")))
pad1 = body.newObject("PartDesign::Pad", "Pad")
pad1.Profile = sketch1
pad1.Length = 965.2
pad1.Reversed = True

doc.recompute()
